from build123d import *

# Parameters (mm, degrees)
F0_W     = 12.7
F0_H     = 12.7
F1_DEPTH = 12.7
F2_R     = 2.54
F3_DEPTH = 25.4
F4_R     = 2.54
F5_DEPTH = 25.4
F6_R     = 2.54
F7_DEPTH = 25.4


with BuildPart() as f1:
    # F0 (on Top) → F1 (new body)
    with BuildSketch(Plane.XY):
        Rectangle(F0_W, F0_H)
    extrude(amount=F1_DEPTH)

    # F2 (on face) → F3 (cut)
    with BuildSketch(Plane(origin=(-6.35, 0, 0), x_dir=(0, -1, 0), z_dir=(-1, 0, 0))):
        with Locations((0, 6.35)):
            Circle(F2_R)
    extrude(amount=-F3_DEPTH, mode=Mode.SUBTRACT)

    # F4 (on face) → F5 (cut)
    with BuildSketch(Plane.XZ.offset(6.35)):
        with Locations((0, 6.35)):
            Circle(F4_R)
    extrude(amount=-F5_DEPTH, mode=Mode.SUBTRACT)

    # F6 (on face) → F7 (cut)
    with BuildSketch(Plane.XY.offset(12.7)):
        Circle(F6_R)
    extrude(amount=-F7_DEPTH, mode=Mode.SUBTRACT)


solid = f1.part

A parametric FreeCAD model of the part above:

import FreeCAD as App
import Part
import Sketcher
Q = App.Units.Quantity


def add_polygon(sketch, points):
    """Adds a closed chain of lines whose ends are joined by coincident constraints."""
    first, n = sketch.GeometryCount, len(points)
    for a, b in zip(points, points[1:] + points[:1]):
        sketch.addGeometry(Part.LineSegment(App.Vector(*a, 0), App.Vector(*b, 0)), False)
    for i in range(n):
        sketch.addConstraint(Sketcher.Constraint("Coincident", first + i, 2, first + (i + 1) % n, 1))

doc = App.newDocument("Part")
params = doc.addObject("Spreadsheet::Sheet", "Params")
for row, (alias, value) in enumerate([
    ("sketch1_width", "0.5 in"),
    ("pad1_length", "0.5 in"),
    ("sketch2_diameter", "0.2 in"),
    ("pocket1_length", "1 in"),
    ("sketch3_diameter", "0.2 in"),
    ("pocket2_length", "1 in"),
    ("sketch4_diameter", "0.2 in"),
    ("pocket3_length", "1 in"),
], start=1):
    params.set(f"A{row}", alias)
    params.set(f"B{row}", "=" + value)
    params.setAlias(f"B{row}", alias)

body = doc.addObject("PartDesign::Body", "Body")

sketch1 = body.newObject("Sketcher::SketchObject", "Sketch")
sketch1.AttachmentSupport = (doc.getObject("XY_Plane"), [""])
sketch1.MapMode = "FlatFace"
add_polygon(sketch1, [(-6, 6), (-6, -6), (6, -6), (6, 6)])
sketch1.addConstraint([
    Sketcher.Constraint("Vertical", 0),
    Sketcher.Constraint("Horizontal", 1),
    Sketcher.Constraint("Vertical", 2),
    Sketcher.Constraint("Horizontal", 3),
    Sketcher.Constraint("Symmetric", 0, 2, 2, 2, -1, 1),
    Sketcher.Constraint("Equal", 3, 0),
    Sketcher.Constraint("DistanceX", 1, 1, 1, 2, Q("0.5 in")),
])
sketch1.setExpression("Constraints[10]", "Params.sketch1_width")
pad1 = body.newObject("PartDesign::Pad", "Pad")
pad1.Profile = sketch1
pad1.setExpression("Length", "Params.pad1_length")

sketch2 = body.newObject("Sketcher::SketchObject", "Sketch001")
sketch2.AttachmentSupport = (doc.getObject("YZ_Plane"), [""])
sketch2.MapMode = "FlatFace"
sketch2.AttachmentOffset = App.Placement(App.Vector(0, 0, -0.25 * 25.4), App.Rotation())
sketch2.addGeometry(Part.Circle(App.Vector(0, 6.3, 0), App.Vector(0, 0, 1), 2.5), False)
sketch2.addConstraint([
    Sketcher.Constraint("PointOnObject", 0, 3, -2),
    Sketcher.Constraint("Diameter", 0, Q("0.2 in")),
    Sketcher.Constraint("DistanceY", -1, 1, 0, 3, Q("0.25 in")),
])
sketch2.setExpression("Constraints[1]", "Params.sketch2_diameter")
pocket1 = body.newObject("PartDesign::Pocket", "Pocket")
pocket1.Profile = sketch2
pocket1.setExpression("Length", "Params.pocket1_length")
pocket1.Reversed = True

sketch3 = body.newObject("Sketcher::SketchObject", "Sketch002")
sketch3.AttachmentSupport = (doc.getObject("XZ_Plane"), [""])
sketch3.MapMode = "FlatFace"
sketch3.AttachmentOffset = App.Placement(App.Vector(0, 0, 0.25 * 25.4), App.Rotation())
sketch3.addGeometry(Part.Circle(App.Vector(0, 6.3, 0), App.Vector(0, 0, 1), 2.5), False)
sketch3.addConstraint([
    Sketcher.Constraint("PointOnObject", 0, 3, -2),
    Sketcher.Constraint("Diameter", 0, Q("0.2 in")),
    Sketcher.Constraint("DistanceY", -1, 1, 0, 3, Q("0.25 in")),
])
sketch3.setExpression("Constraints[1]", "Params.sketch3_diameter")
pocket2 = body.newObject("PartDesign::Pocket", "Pocket001")
pocket2.Profile = sketch3
pocket2.setExpression("Length", "Params.pocket2_length")

sketch4 = body.newObject("Sketcher::SketchObject", "Sketch003")
sketch4.AttachmentSupport = (doc.getObject("XY_Plane"), [""])
sketch4.MapMode = "FlatFace"
sketch4.AttachmentOffset = App.Placement(App.Vector(0, 0, 0.5 * 25.4), App.Rotation())
sketch4.addGeometry(Part.Circle(App.Vector(0, 0, 0), App.Vector(0, 0, 1), 2.5), False)
sketch4.addConstraint([
    Sketcher.Constraint("Coincident", 0, 3, -1, 1),
    Sketcher.Constraint("Diameter", 0, Q("0.2 in")),
])
sketch4.setExpression("Constraints[1]", "Params.sketch4_diameter")
pocket3 = body.newObject("PartDesign::Pocket", "Pocket002")
pocket3.Profile = sketch4
pocket3.setExpression("Length", "Params.pocket3_length")

doc.recompute()
